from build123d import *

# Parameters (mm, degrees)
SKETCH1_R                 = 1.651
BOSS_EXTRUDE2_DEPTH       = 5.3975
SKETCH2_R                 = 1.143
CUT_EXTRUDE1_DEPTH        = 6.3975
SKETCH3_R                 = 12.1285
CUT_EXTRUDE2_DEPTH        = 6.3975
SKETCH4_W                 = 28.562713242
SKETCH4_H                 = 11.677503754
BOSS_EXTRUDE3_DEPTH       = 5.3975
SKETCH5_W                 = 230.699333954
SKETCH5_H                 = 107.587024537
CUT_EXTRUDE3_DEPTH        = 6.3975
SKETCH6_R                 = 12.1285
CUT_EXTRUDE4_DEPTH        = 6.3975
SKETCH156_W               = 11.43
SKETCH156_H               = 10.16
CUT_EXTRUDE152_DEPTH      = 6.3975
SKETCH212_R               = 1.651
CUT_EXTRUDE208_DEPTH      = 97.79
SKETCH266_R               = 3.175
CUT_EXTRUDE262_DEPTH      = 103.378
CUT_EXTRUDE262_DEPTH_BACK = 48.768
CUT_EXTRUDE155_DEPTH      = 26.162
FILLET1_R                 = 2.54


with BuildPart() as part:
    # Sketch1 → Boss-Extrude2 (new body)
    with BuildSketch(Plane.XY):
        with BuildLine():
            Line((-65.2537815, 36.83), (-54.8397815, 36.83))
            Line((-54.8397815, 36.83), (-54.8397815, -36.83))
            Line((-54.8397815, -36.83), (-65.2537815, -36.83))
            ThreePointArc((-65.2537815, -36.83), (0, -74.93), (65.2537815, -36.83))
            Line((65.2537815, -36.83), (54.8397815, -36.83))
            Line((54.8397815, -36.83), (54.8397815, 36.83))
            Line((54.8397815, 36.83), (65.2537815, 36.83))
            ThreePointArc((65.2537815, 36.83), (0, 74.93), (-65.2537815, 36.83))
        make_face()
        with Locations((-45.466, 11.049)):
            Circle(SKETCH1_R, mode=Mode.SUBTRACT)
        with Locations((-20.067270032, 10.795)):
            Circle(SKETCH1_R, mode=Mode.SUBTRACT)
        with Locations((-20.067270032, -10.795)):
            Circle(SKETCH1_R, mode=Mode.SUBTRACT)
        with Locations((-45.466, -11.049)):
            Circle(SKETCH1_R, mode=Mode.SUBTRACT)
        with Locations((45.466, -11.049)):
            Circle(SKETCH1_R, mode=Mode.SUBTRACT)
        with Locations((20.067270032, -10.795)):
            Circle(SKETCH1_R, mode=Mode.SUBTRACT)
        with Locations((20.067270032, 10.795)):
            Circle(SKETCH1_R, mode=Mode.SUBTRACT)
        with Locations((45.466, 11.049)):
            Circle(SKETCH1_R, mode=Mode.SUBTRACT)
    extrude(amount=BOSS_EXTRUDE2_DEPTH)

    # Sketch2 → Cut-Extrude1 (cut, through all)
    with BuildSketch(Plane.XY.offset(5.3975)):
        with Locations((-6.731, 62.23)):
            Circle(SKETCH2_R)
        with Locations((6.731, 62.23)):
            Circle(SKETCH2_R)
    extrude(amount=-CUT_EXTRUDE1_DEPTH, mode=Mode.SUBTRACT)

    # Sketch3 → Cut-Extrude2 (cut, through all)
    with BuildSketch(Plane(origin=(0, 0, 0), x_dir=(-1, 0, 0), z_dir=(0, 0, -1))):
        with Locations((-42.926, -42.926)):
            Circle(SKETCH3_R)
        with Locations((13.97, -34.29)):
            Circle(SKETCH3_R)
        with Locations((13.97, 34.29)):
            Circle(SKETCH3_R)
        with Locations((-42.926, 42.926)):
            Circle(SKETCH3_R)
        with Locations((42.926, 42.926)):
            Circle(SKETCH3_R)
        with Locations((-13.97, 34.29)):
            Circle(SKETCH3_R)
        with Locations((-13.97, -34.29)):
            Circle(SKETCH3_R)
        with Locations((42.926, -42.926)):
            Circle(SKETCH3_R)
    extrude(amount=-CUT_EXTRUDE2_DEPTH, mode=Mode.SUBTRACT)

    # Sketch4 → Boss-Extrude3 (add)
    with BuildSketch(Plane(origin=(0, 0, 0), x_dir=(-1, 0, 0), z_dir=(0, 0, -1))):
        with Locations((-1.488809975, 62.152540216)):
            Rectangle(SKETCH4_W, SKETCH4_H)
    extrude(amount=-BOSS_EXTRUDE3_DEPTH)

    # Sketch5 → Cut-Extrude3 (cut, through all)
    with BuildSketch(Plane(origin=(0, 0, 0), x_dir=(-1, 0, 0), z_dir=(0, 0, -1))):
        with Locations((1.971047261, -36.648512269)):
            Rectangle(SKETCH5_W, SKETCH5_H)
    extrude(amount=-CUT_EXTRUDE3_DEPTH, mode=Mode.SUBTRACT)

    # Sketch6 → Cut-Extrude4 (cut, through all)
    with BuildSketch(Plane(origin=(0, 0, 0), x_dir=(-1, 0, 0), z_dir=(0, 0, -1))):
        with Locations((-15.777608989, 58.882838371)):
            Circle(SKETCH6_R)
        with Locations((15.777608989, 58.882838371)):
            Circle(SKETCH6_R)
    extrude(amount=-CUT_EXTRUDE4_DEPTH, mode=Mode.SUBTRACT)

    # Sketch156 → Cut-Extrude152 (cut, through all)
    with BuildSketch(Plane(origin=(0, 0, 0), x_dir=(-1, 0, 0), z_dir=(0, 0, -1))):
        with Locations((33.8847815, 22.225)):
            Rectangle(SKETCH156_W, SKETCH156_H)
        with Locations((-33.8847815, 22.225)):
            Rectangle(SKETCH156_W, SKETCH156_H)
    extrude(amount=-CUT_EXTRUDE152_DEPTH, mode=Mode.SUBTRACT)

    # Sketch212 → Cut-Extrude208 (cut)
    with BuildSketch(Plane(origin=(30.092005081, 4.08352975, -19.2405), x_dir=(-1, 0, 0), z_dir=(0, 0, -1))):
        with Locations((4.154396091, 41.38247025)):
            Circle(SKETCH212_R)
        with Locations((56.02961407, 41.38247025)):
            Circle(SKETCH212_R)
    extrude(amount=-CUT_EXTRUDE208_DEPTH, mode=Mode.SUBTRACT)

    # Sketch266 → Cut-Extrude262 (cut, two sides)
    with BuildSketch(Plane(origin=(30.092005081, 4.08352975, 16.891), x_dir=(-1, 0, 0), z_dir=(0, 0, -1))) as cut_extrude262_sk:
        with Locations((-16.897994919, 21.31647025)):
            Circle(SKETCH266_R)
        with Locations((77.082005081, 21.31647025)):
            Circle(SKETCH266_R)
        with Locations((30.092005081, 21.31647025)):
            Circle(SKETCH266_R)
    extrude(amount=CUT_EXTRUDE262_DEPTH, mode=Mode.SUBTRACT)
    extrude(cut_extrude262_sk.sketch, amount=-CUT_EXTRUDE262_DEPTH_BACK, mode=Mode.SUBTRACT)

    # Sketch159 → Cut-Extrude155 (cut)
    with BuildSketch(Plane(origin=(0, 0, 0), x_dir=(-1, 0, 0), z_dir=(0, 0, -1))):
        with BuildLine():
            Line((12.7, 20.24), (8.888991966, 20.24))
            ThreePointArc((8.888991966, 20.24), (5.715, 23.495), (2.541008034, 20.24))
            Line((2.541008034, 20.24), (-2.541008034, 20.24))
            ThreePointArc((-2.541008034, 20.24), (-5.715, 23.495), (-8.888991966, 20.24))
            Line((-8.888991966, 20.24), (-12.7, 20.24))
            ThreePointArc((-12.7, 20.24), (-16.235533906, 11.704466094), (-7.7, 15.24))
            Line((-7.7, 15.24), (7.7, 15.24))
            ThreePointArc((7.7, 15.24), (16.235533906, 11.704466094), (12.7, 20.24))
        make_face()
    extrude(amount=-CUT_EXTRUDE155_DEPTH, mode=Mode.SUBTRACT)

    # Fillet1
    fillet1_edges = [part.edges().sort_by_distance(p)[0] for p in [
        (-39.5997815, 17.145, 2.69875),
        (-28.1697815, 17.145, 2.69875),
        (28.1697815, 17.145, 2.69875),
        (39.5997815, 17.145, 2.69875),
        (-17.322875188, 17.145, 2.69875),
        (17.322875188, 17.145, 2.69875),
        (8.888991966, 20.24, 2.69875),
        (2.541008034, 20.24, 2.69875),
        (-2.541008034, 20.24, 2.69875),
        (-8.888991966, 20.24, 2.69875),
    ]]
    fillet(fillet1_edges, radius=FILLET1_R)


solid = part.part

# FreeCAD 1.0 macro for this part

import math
import FreeCAD as App
import Part
import Sketcher
Q = App.Units.Quantity


def edges_at(feature, points):
    """Names of the edges that pass closest to the given points."""
    edges = feature.Shape.Edges
    near = lambda p: min(range(len(edges)), key=lambda i: edges[i].distToShape(Part.Vertex(*p))[0])
    return sorted({f"Edge{near(p) + 1}" for p in points})


def add_polygon(sketch, points):
    """Adds a closed chain of lines whose ends are joined by coincident constraints."""
    first, n = sketch.GeometryCount, len(points)
    for a, b in zip(points, points[1:] + points[:1]):
        sketch.addGeometry(Part.LineSegment(App.Vector(*a, 0), App.Vector(*b, 0)), False)
    for i in range(n):
        sketch.addConstraint(Sketcher.Constraint("Coincident", first + i, 2, first + (i + 1) % n, 1))

doc = App.newDocument("Part")
body = doc.addObject("PartDesign::Body", "Body")

# Sketch on XY plane
sketch1 = doc.addObject("Sketcher::SketchObject", "Sketch")
body.addObject(sketch1)
sketch1.AttachmentSupport = (doc.XY_Plane, [""])
sketch1.MapMode = "FlatFace"
sketch1.addGeometry(Part.LineSegment(App.Vector(-65.3, 36.8, 0), App.Vector(-54.8, 36.8, 0)), False)
sketch1.addGeometry(Part.LineSegment(App.Vector(-54.8, 36.8, 0), App.Vector(-54.8, -36.8, 0)), False)
sketch1.addGeometry(Part.LineSegment(App.Vector(-54.8, -36.8, 0), App.Vector(-65.3, -36.8, 0)), False)
sketch1.addGeometry(Part.ArcOfCircle(Part.Circle(App.Vector(0, 0, 0), App.Vector(0, 0, 1), 74.9), math.radians(-151), math.radians(-29)), False)
sketch1.addGeometry(Part.LineSegment(App.Vector(65.3, -36.8, 0), App.Vector(54.8, -36.8, 0)), False)
sketch1.addGeometry(Part.LineSegment(App.Vector(54.8, -36.8, 0), App.Vector(54.8, 36.8, 0)), False)
sketch1.addGeometry(Part.LineSegment(App.Vector(54.8, 36.8, 0), App.Vector(65.3, 36.8, 0)), False)
sketch1.addGeometry(Part.ArcOfCircle(Part.Circle(App.Vector(0, 0, 0), App.Vector(0, 0, 1), 74.9), math.radians(29), math.radians(151)), False)
sketch1.addGeometry(Part.Circle(App.Vector(-45.5, -11, 0), App.Vector(0, 0, 1), 1.7), False)
sketch1.addGeometry(Part.Circle(App.Vector(-20.1, -10.8, 0), App.Vector(0, 0, 1), 1.7), False)
sketch1.addGeometry(Part.Circle(App.Vector(20.1, -10.8, 0), App.Vector(0, 0, 1), 1.7), False)
sketch1.addGeometry(Part.Circle(App.Vector(45.5, -11, 0), App.Vector(0, 0, 1), 1.7), False)
sketch1.addGeometry(Part.Circle(App.Vector(-45.5, 11, 0), App.Vector(0, 0, 1), 1.7), False)
sketch1.addGeometry(Part.Circle(App.Vector(-20.1, 10.8, 0), App.Vector(0, 0, 1), 1.7), False)
sketch1.addGeometry(Part.Circle(App.Vector(20.1, 10.8, 0), App.Vector(0, 0, 1), 1.7), False)
sketch1.addGeometry(Part.Circle(App.Vector(45.5, 11, 0), App.Vector(0, 0, 1), 1.7), False)
sketch1.addConstraint(Sketcher.Constraint("Coincident", 0, 2, 1, 1))
sketch1.addConstraint(Sketcher.Constraint("Coincident", 1, 2, 2, 1))
sketch1.addConstraint(Sketcher.Constraint("Coincident", 2, 2, 3, 1))
sketch1.addConstraint(Sketcher.Constraint("Coincident", 3, 2, 4, 1))
sketch1.addConstraint(Sketcher.Constraint("Coincident", 4, 2, 5, 1))
sketch1.addConstraint(Sketcher.Constraint("Coincident", 5, 2, 6, 1))
sketch1.addConstraint(Sketcher.Constraint("Coincident", 6, 2, 7, 1))
sketch1.addConstraint(Sketcher.Constraint("Coincident", 7, 2, 0, 1))
sketch1.addConstraint(Sketcher.Constraint("Horizontal", 0))
sketch1.addConstraint(Sketcher.Constraint("Vertical", 1))
sketch1.addConstraint(Sketcher.Constraint("Horizontal", 2))
sketch1.addConstraint(Sketcher.Constraint("Horizontal", 4))
sketch1.addConstraint(Sketcher.Constraint("Vertical", 5))
sketch1.addConstraint(Sketcher.Constraint("Horizontal", 6))
sketch1.addConstraint(Sketcher.Constraint("Coincident", 3, 3, -1, 1))
sketch1.addConstraint(Sketcher.Constraint("Coincident", 7, 3, -1, 1))
sketch1.addConstraint(Sketcher.Constraint("Equal", 3, 7))
sketch1.addConstraint(Sketcher.Constraint("Equal", 8, 9))
sketch1.addConstraint(Sketcher.Constraint("Equal", 9, 10))
sketch1.addConstraint(Sketcher.Constraint("Equal", 10, 11))
sketch1.addConstraint(Sketcher.Constraint("Equal", 11, 12))
sketch1.addConstraint(Sketcher.Constraint("Equal", 12, 13))
sketch1.addConstraint(Sketcher.Constraint("Equal", 13, 14))
sketch1.addConstraint(Sketcher.Constraint("Equal", 14, 15))
sketch1.addConstraint(Sketcher.Constraint("Symmetric", 11, 3, 12, 3, -1, 1))
sketch1.addConstraint(Sketcher.Constraint("Symmetric", 10, 3, 13, 3, -1, 1))
sketch1.addConstraint(Sketcher.Constraint("Symmetric", 9, 3, 14, 3, -1, 1))
sketch1.addConstraint(Sketcher.Constraint("Symmetric", 8, 3, 15, 3, -1, 1))
sketch1.addConstraint(Sketcher.Constraint("Symmetric", 0, 2, 4, 2, -1, 1))
sketch1.addConstraint(Sketcher.Constraint("Symmetric", 9, 3, 10, 3, -2))
sketch1.addConstraint(Sketcher.Constraint("Symmetric", 8, 3, 11, 3, -2))
sketch1.addConstraint(Sketcher.Constraint("Horizontal", 2, 2, 3, 2))
sketch1.addConstraint(Sketcher.Constraint("Horizontal", 0, 2, 5, 2))
sketch1.addConstraint(Sketcher.Constraint("Diameter", 8, Q("0.13 in")))
sketch1.addConstraint(Sketcher.Constraint("Radius", 3, Q("2.95 in")))
sketch1.addConstraint(Sketcher.Constraint("DistanceY", 1, 2, 1, 1, Q("2.9 in")))
sketch1.addConstraint(Sketcher.Constraint("DistanceX", 0, 1, 0, 2, Q("0.41 in")))
sketch1.addConstraint(Sketcher.Constraint("DistanceX", 8, 3, -1, 1, Q("1.79 in")))
sketch1.addConstraint(Sketcher.Constraint("DistanceY", 8, 3, 9, 3, Q("0.01 in")))
sketch1.addConstraint(Sketcher.Constraint("DistanceY", 8, 3, 12, 3, Q("0.87 in")))
sketch1.addConstraint(Sketcher.Constraint("DistanceX", 9, 3, 10, 3, Q("1.5801 in")))
pad1 = doc.addObject("PartDesign::Pad", "Pad")
body.addObject(pad1)
pad1.Profile = sketch1
pad1.Length = Q("0.2125 in")

# Sketch on XY plane
sketch2 = doc.addObject("Sketcher::SketchObject", "Sketch001")
body.addObject(sketch2)
sketch2.AttachmentSupport = (doc.XY_Plane, [""])
sketch2.MapMode = "FlatFace"
sketch2.AttachmentOffset = App.Placement(App.Vector(0, 0, 0.2125 * 25.4), App.Rotation())
sketch2.addGeometry(Part.Circle(App.Vector(-6.7, 62.2, 0), App.Vector(0, 0, 1), 1.1), False)
sketch2.addGeometry(Part.Circle(App.Vector(6.7, 62.2, 0), App.Vector(0, 0, 1), 1.1), False)
sketch2.addConstraint(Sketcher.Constraint("Equal", 0, 1))
sketch2.addConstraint(Sketcher.Constraint("Symmetric", 0, 3, 1, 3, -2))
sketch2.addConstraint(Sketcher.Constraint("Diameter", 0, Q("0.09 in")))
sketch2.addConstraint(Sketcher.Constraint("DistanceY", -1, 1, 0, 3, Q("2.45 in")))
sketch2.addConstraint(Sketcher.Constraint("DistanceX", 0, 3, 1, 3, Q("0.53 in")))
pocket1 = doc.addObject("PartDesign::Pocket", "Pocket")
body.addObject(pocket1)
pocket1.Profile = sketch2
pocket1.Type = "ThroughAll"

# Sketch on XY plane
sketch3 = doc.addObject("Sketcher::SketchObject", "Sketch002")
body.addObject(sketch3)
sketch3.AttachmentSupport = (doc.XY_Plane, [""])
sketch3.MapMode = "FlatFace"
sketch3.addGeometry(Part.Circle(App.Vector(43, -43, 0), App.Vector(0, 0, 1), 12), False)
sketch3.addGeometry(Part.Circle(App.Vector(-14, -34, 0), App.Vector(0, 0, 1), 12), False)
sketch3.addGeometry(Part.Circle(App.Vector(-14, 34, 0), App.Vector(0, 0, 1), 12), False)
sketch3.addGeometry(Part.Circle(App.Vector(43, 43, 0), App.Vector(0, 0, 1), 12), False)
sketch3.addGeometry(Part.Circle(App.Vector(-43, 43, 0), App.Vector(0, 0, 1), 12), False)
sketch3.addGeometry(Part.Circle(App.Vector(14, 34, 0), App.Vector(0, 0, 1), 12), False)
sketch3.addGeometry(Part.Circle(App.Vector(14, -34, 0), App.Vector(0, 0, 1), 12), False)
sketch3.addGeometry(Part.Circle(App.Vector(-43, -43, 0), App.Vector(0, 0, 1), 12), False)
sketch3.addConstraint(Sketcher.Constraint("Equal", 0, 1))
sketch3.addConstraint(Sketcher.Constraint("Equal", 1, 2))
sketch3.addConstraint(Sketcher.Constraint("Equal", 2, 3))
sketch3.addConstraint(Sketcher.Constraint("Equal", 3, 4))
sketch3.addConstraint(Sketcher.Constraint("Equal", 4, 5))
sketch3.addConstraint(Sketcher.Constraint("Equal", 5, 6))
sketch3.addConstraint(Sketcher.Constraint("Equal", 6, 7))
sketch3.addConstraint(Sketcher.Constraint("Symmetric", 0, 3, 4, 3, -1, 1))
sketch3.addConstraint(Sketcher.Constraint("Symmetric", 1, 3, 5, 3, -1, 1))
sketch3.addConstraint(Sketcher.Constraint("Symmetric", 2, 3, 6, 3, -1, 1))
sketch3.addConstraint(Sketcher.Constraint("Symmetric", 3, 3, 7, 3, -1, 1))
sketch3.addConstraint(Sketcher.Constraint("Symmetric", 3, 3, 4, 3, -2))
sketch3.addConstraint(Sketcher.Constraint("Symmetric", 2, 3, 5, 3, -2))
sketch3.addConstraint(Sketcher.Constraint("Diameter", 0, Q("0.955 in")))
sketch3.addConstraint(Sketcher.Constraint("DistanceY", 1, 3, 2, 3, Q("2.7 in")))
sketch3.addConstraint(Sketcher.Constraint("DistanceX", 2, 3, 5, 3, Q("1.1 in")))
sketch3.addConstraint(Sketcher.Constraint("DistanceX", -1, 1, 0, 3, Q("1.69 in")))
sketch3.addConstraint(Sketcher.Constraint("DistanceY", 0, 3, -1, 1, Q("1.69 in")))
pocket2 = doc.addObject("PartDesign::Pocket", "Pocket001")
body.addObject(pocket2)
pocket2.Profile = sketch3
pocket2.Type = "ThroughAll"
pocket2.Reversed = True

# Sketch on XY plane
sketch4 = doc.addObject("Sketcher::SketchObject", "Sketch003")
body.addObject(sketch4)
sketch4.AttachmentSupport = (doc.XY_Plane, [""])
sketch4.MapMode = "FlatFace"
add_polygon(sketch4, [(16, 68), (16, 56), (-13, 56), (-13, 68)])  # lines 0-3
sketch4.addConstraint(Sketcher.Constraint("Vertical", 0))
sketch4.addConstraint(Sketcher.Constraint("Horizontal", 1))
sketch4.addConstraint(Sketcher.Constraint("Vertical", 2))
sketch4.addConstraint(Sketcher.Constraint("Horizontal", 3))
sketch4.addConstraint(Sketcher.Constraint("DistanceX", 1, 2, 1, 1, 28.562713))
sketch4.addConstraint(Sketcher.Constraint("DistanceY", 0, 2, 0, 1, 11.677504))
sketch4.addConstraint(Sketcher.Constraint("DistanceY", -1, 1, 0, 2, 56.313788))
sketch4.addConstraint(Sketcher.Constraint("DistanceX", -1, 1, 0, 2, 15.770167))
pad2 = doc.addObject("PartDesign::Pad", "Pad001")
body.addObject(pad2)
pad2.Profile = sketch4
pad2.Length = Q("0.2125 in")

# Sketch on XY plane
sketch5 = doc.addObject("Sketcher::SketchObject", "Sketch004")
body.addObject(sketch5)
sketch5.AttachmentSupport = (doc.XY_Plane, [""])
sketch5.MapMode = "FlatFace"
add_polygon(sketch5, [(113, 17), (113, -90), (-117, -90), (-117, 17)])  # lines 0-3
sketch5.addConstraint(Sketcher.Constraint("Vertical", 0))
sketch5.addConstraint(Sketcher.Constraint("Horizontal", 1))
sketch5.addConstraint(Sketcher.Constraint("Vertical", 2))
sketch5.addConstraint(Sketcher.Constraint("Horizontal", 3))
sketch5.addConstraint(Sketcher.Constraint("DistanceY", -1, 1, 2, 2, Q("0.675 in")))
sketch5.addConstraint(Sketcher.Constraint("DistanceX", 1, 2, 1, 1, 230.699334))
sketch5.addConstraint(Sketcher.Constraint("DistanceY", 0, 2, 0, 1, 107.587025))
sketch5.addConstraint(Sketcher.Constraint("DistanceX", -1, 1, 0, 2, 113.37862))
pocket3 = doc.addObject("PartDesign::Pocket", "Pocket002")
body.addObject(pocket3)
pocket3.Profile = sketch5
pocket3.Type = "ThroughAll"
pocket3.Reversed = True

# Sketch on XY plane
sketch6 = doc.addObject("Sketcher::SketchObject", "Sketch005")
body.addObject(sketch6)
sketch6.AttachmentSupport = (doc.XY_Plane, [""])
sketch6.MapMode = "FlatFace"
sketch6.addGeometry(Part.Circle(App.Vector(16, 59, 0), App.Vector(0, 0, 1), 12), False)
sketch6.addGeometry(Part.Circle(App.Vector(-16, 59, 0), App.Vector(0, 0, 1), 12), False)
sketch6.addConstraint(Sketcher.Constraint("Equal", 0, 1))
sketch6.addConstraint(Sketcher.Constraint("Symmetric", 0, 3, 1, 3, -2))
sketch6.addConstraint(Sketcher.Constraint("Diameter", 0, Q("0.955 in")))
sketch6.addConstraint(Sketcher.Constraint("DistanceX", -1, 1, 0, 3, 15.777609))
sketch6.addConstraint(Sketcher.Constraint("DistanceY", -1, 1, 0, 3, 58.882838))
pocket4 = doc.addObject("PartDesign::Pocket", "Pocket003")
body.addObject(pocket4)
pocket4.Profile = sketch6
pocket4.Type = "ThroughAll"
pocket4.Reversed = True

# Sketch on XY plane
sketch7 = doc.addObject("Sketcher::SketchObject", "Sketch006")
body.addObject(sketch7)
sketch7.AttachmentSupport = (doc.XY_Plane, [""])
sketch7.MapMode = "FlatFace"
add_polygon(sketch7, [(-28, 27), (-28, 17), (-40, 17), (-40, 27)])  # lines 0-3
add_polygon(sketch7, [(40, 27), (40, 17), (28, 17), (28, 27)])  # lines 4-7
sketch7.addConstraint(Sketcher.Constraint("Vertical", 0))
sketch7.addConstraint(Sketcher.Constraint("Horizontal", 1))
sketch7.addConstraint(Sketcher.Constraint("Vertical", 2))
sketch7.addConstraint(Sketcher.Constraint("Horizontal", 3))
sketch7.addConstraint(Sketcher.Constraint("Vertical", 4))
sketch7.addConstraint(Sketcher.Constraint("Horizontal", 5))
sketch7.addConstraint(Sketcher.Constraint("Vertical", 6))
sketch7.addConstraint(Sketcher.Constraint("Horizontal", 7))
sketch7.addConstraint(Sketcher.Constraint("Symmetric", 1, 2, 4, 2, -2))
sketch7.addConstraint(Sketcher.Constraint("Symmetric", 3, 2, 6, 2, -2))
sketch7.addConstraint(Sketcher.Constraint("DistanceY", 0, 2, 0, 1, Q("0.4 in")))
sketch7.addConstraint(Sketcher.Constraint("DistanceX", 1, 2, 1, 1, Q("0.45 in")))
sketch7.addConstraint(Sketcher.Constraint("DistanceY", -1, 1, 0, 2, Q("0.675 in")))
sketch7.addConstraint(Sketcher.Constraint("DistanceX", 0, 2, -1, 1, 28.169781))
pocket5 = doc.addObject("PartDesign::Pocket", "Pocket004")
body.addObject(pocket5)
pocket5.Profile = sketch7
pocket5.Type = "ThroughAll"
pocket5.Reversed = True

# Sketch on XY plane
sketch8 = doc.addObject("Sketcher::SketchObject", "Sketch007")
body.addObject(sketch8)
sketch8.AttachmentSupport = (doc.XY_Plane, [""])
sketch8.MapMode = "FlatFace"
sketch8.AttachmentOffset = App.Placement(App.Vector(0, 0, -0.7575 * 25.4), App.Rotation())
sketch8.addGeometry(Part.Circle(App.Vector(25.9, 45.5, 0), App.Vector(0, 0, 1), 1.7), False)
sketch8.addGeometry(Part.Circle(App.Vector(-25.9, 45.5, 0), App.Vector(0, 0, 1), 1.7), False)
sketch8.addConstraint(Sketcher.Constraint("Equal", 0, 1))
sketch8.addConstraint(Sketcher.Constraint("Symmetric", 0, 3, 1, 3, -2))
sketch8.addConstraint(Sketcher.Constraint("Diameter", 0, Q("0.13 in")))
sketch8.addConstraint(Sketcher.Constraint("DistanceY", -1, 1, 0, 3, Q("1.79 in")))
sketch8.addConstraint(Sketcher.Constraint("DistanceX", -1, 1, 0, 3, 25.937609))
pocket6 = doc.addObject("PartDesign::Pocket", "Pocket005")
body.addObject(pocket6)
pocket6.Profile = sketch8
pocket6.Length = Q("3.85 in")
pocket6.Reversed = True

# Sketch on XY plane
sketch9 = doc.addObject("Sketcher::SketchObject", "Sketch008")
body.addObject(sketch9)
sketch9.AttachmentSupport = (doc.XY_Plane, [""])
sketch9.MapMode = "FlatFace"
sketch9.AttachmentOffset = App.Placement(App.Vector(0, 0, 0.665 * 25.4), App.Rotation())
sketch9.addGeometry(Part.Circle(App.Vector(47, 25.4, 0), App.Vector(0, 0, 1), 3.2), False)
sketch9.addGeometry(Part.Circle(App.Vector(-47, 25.4, 0), App.Vector(0, 0, 1), 3.2), False)
sketch9.addGeometry(Part.Circle(App.Vector(0, 25.4, 0), App.Vector(0, 0, 1), 3.2), False)
sketch9.addConstraint(Sketcher.Constraint("Equal", 0, 1))
sketch9.addConstraint(Sketcher.Constraint("Equal", 1, 2))
sketch9.addConstraint(Sketcher.Constraint("Symmetric", 0, 3, 1, 3, -2))
sketch9.addConstraint(Sketcher.Constraint("PointOnObject", 2, 3, -2))
sketch9.addConstraint(Sketcher.Constraint("Horizontal", 1, 3, 2, 3))
sketch9.addConstraint(Sketcher.Constraint("Diameter", 0, Q("0.25 in")))
sketch9.addConstraint(Sketcher.Constraint("DistanceY", -1, 1, 0, 3, Q("1 in")))
sketch9.addConstraint(Sketcher.Constraint("DistanceX", 1, 3, 0, 3, Q("3.7 in")))
pocket7 = doc.addObject("PartDesign::Pocket", "Pocket006")
body.addObject(pocket7)
pocket7.Profile = sketch9
pocket7.Type = "ThroughAll"
pocket7.Midplane = True

# Sketch on XY plane
sketch10 = doc.addObject("Sketcher::SketchObject", "Sketch009")
body.addObject(sketch10)
sketch10.AttachmentSupport = (doc.XY_Plane, [""])
sketch10.MapMode = "FlatFace"
sketch10.addGeometry(Part.LineSegment(App.Vector(-12.7, 20.2, 0), App.Vector(-8.9, 20.2, 0)), False)
sketch10.addGeometry(Part.ArcOfCircle(Part.Circle(App.Vector(-5.7, 20.3, 0), App.Vector(0, 0, 1), 3.2), math.radians(-1), math.radians(181)), False)
sketch10.addGeometry(Part.LineSegment(App.Vector(-2.5, 20.2, 0), App.Vector(2.5, 20.2, 0)), False)
sketch10.addGeometry(Part.ArcOfCircle(Part.Circle(App.Vector(5.7, 20.3, 0), App.Vector(0, 0, 1), 3.2), math.radians(-1), math.radians(181)), False)
sketch10.addGeometry(Part.LineSegment(App.Vector(8.9, 20.2, 0), App.Vector(12.7, 20.2, 0)), False)
sketch10.addGeometry(Part.ArcOfCircle(Part.Circle(App.Vector(12.7, 15.2, 0), App.Vector(0, 0, 1), 5), math.radians(180), math.radians(450)), False)
sketch10.addGeometry(Part.LineSegment(App.Vector(7.7, 15.2, 0), App.Vector(-7.7, 15.2, 0)), False)
sketch10.addGeometry(Part.ArcOfCircle(Part.Circle(App.Vector(-12.7, 15.2, 0), App.Vector(0, 0, 1), 5), math.radians(90), math.radians(360)), False)
sketch10.addConstraint(Sketcher.Constraint("Coincident", 0, 2, 1, 2))
sketch10.addConstraint(Sketcher.Constraint("Coincident", 1, 1, 2, 1))
sketch10.addConstraint(Sketcher.Constraint("Coincident", 2, 2, 3, 2))
sketch10.addConstraint(Sketcher.Constraint("Coincident", 3, 1, 4, 1))
sketch10.addConstraint(Sketcher.Constraint("Tangent", 4, 2, 5, 2))
sketch10.addConstraint(Sketcher.Constraint("Coincident", 5, 1, 6, 1))
sketch10.addConstraint(Sketcher.Constraint("Coincident", 6, 2, 7, 2))
sketch10.addConstraint(Sketcher.Constraint("Tangent", 7, 1, 0, 1))
sketch10.addConstraint(Sketcher.Constraint("Horizontal", 0))
sketch10.addConstraint(Sketcher.Constraint("Horizontal", 2))
sketch10.addConstraint(Sketcher.Constraint("Horizontal", 4))
sketch10.addConstraint(Sketcher.Constraint("Horizontal", 6))
sketch10.addConstraint(Sketcher.Constraint("Equal", 1, 3))
sketch10.addConstraint(Sketcher.Constraint("Equal", 5, 7))
sketch10.addConstraint(Sketcher.Constraint("Symmetric", 1, 3, 3, 3, -2))
sketch10.addConstraint(Sketcher.Constraint("Symmetric", 5, 3, 7, 3, -2))
sketch10.addConstraint(Sketcher.Constraint("Horizontal", 0, 2, 1, 1))
sketch10.addConstraint(Sketcher.Constraint("Horizontal", 7, 3, 5, 1))
sketch10.addConstraint(Sketcher.Constraint("Radius", 1, Q("0.125 in")))
sketch10.addConstraint(Sketcher.Constraint("DistanceX", 7, 3, 5, 3, Q("1 in")))
sketch10.addConstraint(Sketcher.Constraint("DistanceY", -1, 1, 1, 3, Q("0.8 in")))
sketch10.addConstraint(Sketcher.Constraint("DistanceY", -1, 1, 5, 3, Q("0.6 in")))
sketch10.addConstraint(Sketcher.Constraint("Radius", 5, 5.0))
sketch10.addConstraint(Sketcher.Constraint("DistanceX", 1, 3, 3, 3, Q("0.45 in")))
pocket8 = doc.addObject("PartDesign::Pocket", "Pocket007")
body.addObject(pocket8)
pocket8.Profile = sketch10
pocket8.Length = Q("1.03 in")
pocket8.Reversed = True
doc.recompute()

fillet = doc.addObject("PartDesign::Fillet", "Fillet")
body.addObject(fillet)
fillet.Base = (pocket8, edges_at(pocket8, [
    (-39.6, 17.145, 2.699),
    (-28.17, 17.145, 2.699),
    (28.17, 17.145, 2.699),
    (39.6, 17.145, 2.699),
    (-17.323, 17.145, 2.699),
    (17.323, 17.145, 2.699),
    (8.889, 20.24, 2.699),
    (2.541, 20.24, 2.699),
    (-2.541, 20.24, 2.699),
    (-8.889, 20.24, 2.699),
]))
fillet.Radius = Q("0.1 in")

doc.recompute()
